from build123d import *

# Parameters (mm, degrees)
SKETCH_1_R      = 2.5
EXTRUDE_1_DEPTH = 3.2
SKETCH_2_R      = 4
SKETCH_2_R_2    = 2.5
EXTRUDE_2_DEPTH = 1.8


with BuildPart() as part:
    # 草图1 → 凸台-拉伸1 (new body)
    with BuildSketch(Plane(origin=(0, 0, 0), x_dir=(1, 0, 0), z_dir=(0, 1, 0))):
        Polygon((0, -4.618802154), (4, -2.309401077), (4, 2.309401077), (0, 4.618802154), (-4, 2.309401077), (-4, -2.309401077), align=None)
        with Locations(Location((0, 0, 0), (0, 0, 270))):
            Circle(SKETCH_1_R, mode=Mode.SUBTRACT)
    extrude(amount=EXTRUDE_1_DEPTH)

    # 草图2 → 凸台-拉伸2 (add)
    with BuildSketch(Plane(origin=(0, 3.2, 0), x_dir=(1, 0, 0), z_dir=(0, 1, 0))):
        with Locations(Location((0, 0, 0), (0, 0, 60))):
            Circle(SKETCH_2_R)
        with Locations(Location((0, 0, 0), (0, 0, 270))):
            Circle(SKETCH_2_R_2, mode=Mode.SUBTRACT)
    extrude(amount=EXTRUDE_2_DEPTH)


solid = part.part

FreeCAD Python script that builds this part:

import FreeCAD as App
import Part
import Sketcher

V = App.Vector
Q = App.Units.Quantity


def add_polygon(sketch, points):
    """Adds a closed chain of lines whose ends are joined by coincident constraints."""
    first, n = sketch.GeometryCount, len(points)
    for a, b in zip(points, points[1:] + points[:1]):
        sketch.addGeometry(Part.LineSegment(App.Vector(*a, 0), App.Vector(*b, 0)), False)
    for i in range(n):
        sketch.addConstraint(Sketcher.Constraint("Coincident", first + i, 2, first + (i + 1) % n, 1))

doc = App.newDocument("Part")
body = doc.addObject("PartDesign::Body", "Body")

sketch1 = body.newObject("Sketcher::SketchObject", "Sketch")
sketch1.AttachmentSupport = (doc.getObject("XZ_Plane"), [""])
sketch1.MapMode = "FlatFace"
add_polygon(sketch1, [(0, 4.6), (4, 2.3), (4, -2.3), (0, -4.6), (-4, -2.3), (-4, 2.3)])
sketch1.addGeometry(Part.Circle(V(0, 0, 0), V(0, 0, 1), 2.5), False)
sketch1.addConstraint([
    Sketcher.Constraint("Vertical", 1),
    Sketcher.Constraint("Vertical", 4),
    Sketcher.Constraint("Coincident", 6, 3, -1, 1),
    Sketcher.Constraint("Symmetric", 0, 2, 3, 2, -1, 1),
    Sketcher.Constraint("Symmetric", 2, 2, 5, 2, -1, 1),
    Sketcher.Constraint("PointOnObject", 2, 2, -2),
    Sketcher.Constraint("Parallel", 2, 5),
    Sketcher.Constraint("Horizontal", 1, 2, 3, 2),
    Sketcher.Constraint("Diameter", 6, Q("5 mm")),
    Sketcher.Constraint("Angle", 0, Q("-30 deg")),
    Sketcher.Constraint("DistanceX", -1, 1, 0, 2, Q("4 mm")),
    Sketcher.Constraint("DistanceY", -1, 1, 0, 2, Q("2.309401 mm")),
])
pad1 = body.newObject("PartDesign::Pad", "Pad")
pad1.Profile = sketch1
pad1.Length = 3.2
pad1.Reversed = True

sketch2 = body.newObject("Sketcher::SketchObject", "Sketch001")
sketch2.AttachmentSupport = (doc.getObject("XZ_Plane"), [""])
sketch2.MapMode = "FlatFace"
sketch2.AttachmentOffset = App.Placement(V(0, 0, -3.2), App.Rotation())
sketch2.addGeometry([
    Part.Circle(V(0, 0, 0), V(0, 0, 1), 4),
    Part.Circle(V(0, 0, 0), V(0, 0, 1), 2.5),
], False)
sketch2.addConstraint([
    Sketcher.Constraint("Coincident", 0, 3, -1, 1),
    Sketcher.Constraint("Coincident", 1, 3, -1, 1),
    Sketcher.Constraint("Diameter", 0, Q("8 mm")),
    Sketcher.Constraint("Diameter", 1, Q("5 mm")),
])
pad2 = body.newObject("PartDesign::Pad", "Pad001")
pad2.Profile = sketch2
pad2.Length = 1.8
pad2.Reversed = True

doc.recompute()
